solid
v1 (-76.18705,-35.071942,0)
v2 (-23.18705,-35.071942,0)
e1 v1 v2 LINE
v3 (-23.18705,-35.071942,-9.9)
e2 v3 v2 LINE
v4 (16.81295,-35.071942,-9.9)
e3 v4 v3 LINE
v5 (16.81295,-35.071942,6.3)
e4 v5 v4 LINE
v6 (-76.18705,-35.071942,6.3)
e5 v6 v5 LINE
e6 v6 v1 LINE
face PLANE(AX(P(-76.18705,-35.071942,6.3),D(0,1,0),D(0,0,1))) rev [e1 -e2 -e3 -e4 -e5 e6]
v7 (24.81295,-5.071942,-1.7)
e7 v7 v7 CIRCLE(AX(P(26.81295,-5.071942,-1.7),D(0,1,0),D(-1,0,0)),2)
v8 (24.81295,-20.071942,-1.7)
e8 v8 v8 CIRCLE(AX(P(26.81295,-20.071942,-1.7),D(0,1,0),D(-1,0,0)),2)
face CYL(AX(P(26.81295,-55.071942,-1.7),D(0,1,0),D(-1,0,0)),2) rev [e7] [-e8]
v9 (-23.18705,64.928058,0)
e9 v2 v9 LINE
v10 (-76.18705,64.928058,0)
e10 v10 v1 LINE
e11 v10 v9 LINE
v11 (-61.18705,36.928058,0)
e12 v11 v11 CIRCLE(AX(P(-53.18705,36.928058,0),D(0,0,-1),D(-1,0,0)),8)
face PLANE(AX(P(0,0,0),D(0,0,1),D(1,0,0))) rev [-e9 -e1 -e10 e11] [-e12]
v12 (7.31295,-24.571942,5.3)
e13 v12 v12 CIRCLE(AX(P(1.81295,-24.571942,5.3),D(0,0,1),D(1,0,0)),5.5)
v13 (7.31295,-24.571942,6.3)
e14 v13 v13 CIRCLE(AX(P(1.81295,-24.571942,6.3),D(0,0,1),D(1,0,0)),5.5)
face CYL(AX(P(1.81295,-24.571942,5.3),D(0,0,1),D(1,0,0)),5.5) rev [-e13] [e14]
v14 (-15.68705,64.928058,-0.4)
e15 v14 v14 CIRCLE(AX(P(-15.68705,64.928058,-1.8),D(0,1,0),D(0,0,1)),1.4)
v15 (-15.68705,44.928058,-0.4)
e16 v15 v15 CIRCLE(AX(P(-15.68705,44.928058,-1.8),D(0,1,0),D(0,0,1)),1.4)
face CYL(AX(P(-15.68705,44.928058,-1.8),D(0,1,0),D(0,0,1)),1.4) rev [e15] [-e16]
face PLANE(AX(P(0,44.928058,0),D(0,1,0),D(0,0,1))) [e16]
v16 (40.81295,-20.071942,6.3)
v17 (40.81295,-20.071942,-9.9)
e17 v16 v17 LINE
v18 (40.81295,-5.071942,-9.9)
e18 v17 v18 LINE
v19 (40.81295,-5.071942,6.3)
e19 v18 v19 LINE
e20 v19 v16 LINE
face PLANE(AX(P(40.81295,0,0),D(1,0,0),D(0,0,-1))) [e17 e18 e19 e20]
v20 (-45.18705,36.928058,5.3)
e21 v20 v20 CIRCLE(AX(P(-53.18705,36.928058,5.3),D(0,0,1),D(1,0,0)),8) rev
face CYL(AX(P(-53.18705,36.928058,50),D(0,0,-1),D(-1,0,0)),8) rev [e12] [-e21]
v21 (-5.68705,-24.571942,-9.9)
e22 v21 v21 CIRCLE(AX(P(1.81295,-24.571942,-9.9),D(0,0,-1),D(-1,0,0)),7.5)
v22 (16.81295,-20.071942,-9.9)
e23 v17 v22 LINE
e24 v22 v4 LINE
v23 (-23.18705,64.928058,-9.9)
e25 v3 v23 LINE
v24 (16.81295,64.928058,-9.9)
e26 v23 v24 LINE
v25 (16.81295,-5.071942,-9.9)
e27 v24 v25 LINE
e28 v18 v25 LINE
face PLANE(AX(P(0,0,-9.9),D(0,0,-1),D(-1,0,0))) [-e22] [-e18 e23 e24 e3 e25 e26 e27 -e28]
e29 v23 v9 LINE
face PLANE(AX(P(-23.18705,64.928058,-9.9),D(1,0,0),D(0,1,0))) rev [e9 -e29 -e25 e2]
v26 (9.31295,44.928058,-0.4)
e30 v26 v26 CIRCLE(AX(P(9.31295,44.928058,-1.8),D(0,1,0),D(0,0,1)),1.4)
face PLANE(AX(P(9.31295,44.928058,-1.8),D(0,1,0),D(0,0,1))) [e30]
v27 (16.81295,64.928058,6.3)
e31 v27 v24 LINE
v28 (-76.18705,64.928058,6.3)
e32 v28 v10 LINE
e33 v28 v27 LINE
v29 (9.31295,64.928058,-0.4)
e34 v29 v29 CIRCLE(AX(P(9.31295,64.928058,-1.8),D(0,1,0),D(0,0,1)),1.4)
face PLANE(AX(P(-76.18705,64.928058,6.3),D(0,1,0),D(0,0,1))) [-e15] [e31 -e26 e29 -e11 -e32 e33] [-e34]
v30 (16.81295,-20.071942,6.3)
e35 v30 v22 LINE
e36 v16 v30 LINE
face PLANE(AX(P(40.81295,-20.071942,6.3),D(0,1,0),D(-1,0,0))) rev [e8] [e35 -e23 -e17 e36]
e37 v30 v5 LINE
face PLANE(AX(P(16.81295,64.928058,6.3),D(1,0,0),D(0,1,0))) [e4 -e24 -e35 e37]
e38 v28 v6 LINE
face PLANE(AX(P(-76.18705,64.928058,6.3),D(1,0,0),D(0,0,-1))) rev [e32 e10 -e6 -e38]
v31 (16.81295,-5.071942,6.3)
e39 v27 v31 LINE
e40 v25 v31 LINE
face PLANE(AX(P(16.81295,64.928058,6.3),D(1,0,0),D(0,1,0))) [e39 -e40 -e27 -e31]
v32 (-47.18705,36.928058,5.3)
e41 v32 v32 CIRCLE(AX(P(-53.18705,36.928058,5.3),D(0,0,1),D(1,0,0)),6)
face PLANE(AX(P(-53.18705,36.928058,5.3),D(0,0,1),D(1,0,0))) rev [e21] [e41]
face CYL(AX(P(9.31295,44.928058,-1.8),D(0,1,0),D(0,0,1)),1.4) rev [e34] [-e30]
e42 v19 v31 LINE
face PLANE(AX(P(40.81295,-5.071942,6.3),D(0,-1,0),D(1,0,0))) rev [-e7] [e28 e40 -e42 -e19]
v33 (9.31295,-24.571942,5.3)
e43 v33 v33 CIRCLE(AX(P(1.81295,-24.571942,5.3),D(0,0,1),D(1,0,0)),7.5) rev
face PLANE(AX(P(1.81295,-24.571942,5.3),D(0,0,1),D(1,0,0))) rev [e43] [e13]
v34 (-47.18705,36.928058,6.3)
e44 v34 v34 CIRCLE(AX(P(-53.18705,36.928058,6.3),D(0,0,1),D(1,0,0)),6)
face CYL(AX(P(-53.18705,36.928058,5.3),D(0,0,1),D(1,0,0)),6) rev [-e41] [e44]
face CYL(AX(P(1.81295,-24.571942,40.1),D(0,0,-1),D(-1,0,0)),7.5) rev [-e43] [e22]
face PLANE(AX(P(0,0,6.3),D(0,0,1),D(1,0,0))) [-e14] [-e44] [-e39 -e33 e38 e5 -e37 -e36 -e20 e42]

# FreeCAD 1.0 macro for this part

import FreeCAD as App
import Part
import Sketcher
from FreeCAD import Vector
Q = App.Units.Quantity

doc = App.newDocument("Part")
body = doc.addObject("PartDesign::Body", "Body")

sketch1 = body.newObject("Sketcher::SketchObject", "Sketch")
sketch1.AttachmentSupport = (doc.getObject("XY_Plane"), [""])
sketch1.MapMode = "FlatFace"
sketch1.addGeometry([
    Part.LineSegment(Vector(-76, 65, 0), Vector(-76, -35, 0)),
    Part.LineSegment(Vector(-76, -35, 0), Vector(17, -35, 0)),
    Part.LineSegment(Vector(17, -35, 0), Vector(17, 65, 0)),
    Part.LineSegment(Vector(17, 65, 0), Vector(-76, 65, 0)),
], False)
sketch1.addConstraint([
    Sketcher.Constraint("Coincident", 0, 2, 1, 1),
    Sketcher.Constraint("Coincident", 1, 2, 2, 1),
    Sketcher.Constraint("Coincident", 2, 2, 3, 1),
    Sketcher.Constraint("Coincident", 3, 2, 0, 1),
    Sketcher.Constraint("Vertical", 0),
    Sketcher.Constraint("Horizontal", 1),
    Sketcher.Constraint("Vertical", 2),
    Sketcher.Constraint("Horizontal", 3),
    Sketcher.Constraint("DistanceX", 1, 1, 1, 2, Q("93 mm")),
    Sketcher.Constraint("DistanceY", 0, 2, 0, 1, Q("100 mm")),
    Sketcher.Constraint("DistanceX", 0, 2, -1, 1, Q("76.18705 mm")),
    Sketcher.Constraint("DistanceY", 0, 2, -1, 1, Q("35.071942 mm")),
])
pad1 = body.newObject("PartDesign::Pad", "Pad")
pad1.Profile = sketch1
pad1.Length = 6.3

sketch2 = body.newObject("Sketcher::SketchObject", "Sketch001")
sketch2.AttachmentSupport = (doc.getObject("XY_Plane"), [""])
sketch2.MapMode = "FlatFace"
sketch2.addGeometry([
    Part.LineSegment(Vector(17, 65, 0), Vector(17, -35, 0)),
    Part.LineSegment(Vector(17, -35, 0), Vector(-23, -35, 0)),
    Part.LineSegment(Vector(-23, -35, 0), Vector(-23, 65, 0)),
    Part.LineSegment(Vector(-23, 65, 0), Vector(17, 65, 0)),
], False)
sketch2.addConstraint([
    Sketcher.Constraint("Coincident", 0, 2, 1, 1),
    Sketcher.Constraint("Coincident", 1, 2, 2, 1),
    Sketcher.Constraint("Coincident", 2, 2, 3, 1),
    Sketcher.Constraint("Coincident", 3, 2, 0, 1),
    Sketcher.Constraint("Vertical", 0),
    Sketcher.Constraint("Horizontal", 1),
    Sketcher.Constraint("Vertical", 2),
    Sketcher.Constraint("Horizontal", 3),
    Sketcher.Constraint("DistanceX", 1, 2, 1, 1, Q("40 mm")),
    Sketcher.Constraint("DistanceY", 0, 2, 0, 1, Q("100 mm")),
    Sketcher.Constraint("DistanceX", -1, 1, 0, 2, Q("16.81295 mm")),
    Sketcher.Constraint("DistanceY", 0, 2, -1, 1, Q("35.071942 mm")),
])
pad2 = body.newObject("PartDesign::Pad", "Pad001")
pad2.Profile = sketch2
pad2.Length = 9.9
pad2.Reversed = True

sketch3 = body.newObject("Sketcher::SketchObject", "Sketch002")
sketch3.AttachmentSupport = (doc.getObject("YZ_Plane"), [""])
sketch3.MapMode = "FlatFace"
sketch3.AttachmentOffset = App.Placement(Vector(0, 0, 16.81295), App.Rotation())
sketch3.addGeometry([
    Part.LineSegment(Vector(-5, 6, 0), Vector(-20, 6, 0)),
    Part.LineSegment(Vector(-20, 6, 0), Vector(-20, -10, 0)),
    Part.LineSegment(Vector(-20, -10, 0), Vector(-5, -10, 0)),
    Part.LineSegment(Vector(-5, -10, 0), Vector(-5, 6, 0)),
], False)
sketch3.addConstraint([
    Sketcher.Constraint("Coincident", 0, 2, 1, 1),
    Sketcher.Constraint("Coincident", 1, 2, 2, 1),
    Sketcher.Constraint("Coincident", 2, 2, 3, 1),
    Sketcher.Constraint("Coincident", 3, 2, 0, 1),
    Sketcher.Constraint("Horizontal", 0),
    Sketcher.Constraint("Vertical", 1),
    Sketcher.Constraint("Horizontal", 2),
    Sketcher.Constraint("Vertical", 3),
    Sketcher.Constraint("DistanceX", 0, 2, 0, 1, Q("15 mm")),
    Sketcher.Constraint("DistanceY", 1, 2, 1, 1, Q("16.2 mm")),
    Sketcher.Constraint("DistanceY", -1, 1, 0, 2, Q("6.3 mm")),
    Sketcher.Constraint("DistanceX", 0, 2, -1, 1, Q("20.071942 mm")),
])
pad3 = body.newObject("PartDesign::Pad", "Pad002")
pad3.Profile = sketch3
pad3.Length = 24

sketch4 = body.newObject("Sketcher::SketchObject", "Sketch003")
sketch4.AttachmentSupport = (doc.getObject("XZ_Plane"), [""])
sketch4.MapMode = "FlatFace"
sketch4.AttachmentOffset = App.Placement(Vector(0, 0, 5.071942), App.Rotation())
sketch4.addGeometry(Part.Circle(Vector(26.8, -1.7, 0), Vector(0, 0, 1), 2), False)
sketch4.addConstraint([
    Sketcher.Constraint("Diameter", 0, Q("4 mm")),
    Sketcher.Constraint("DistanceY", 0, 3, -1, 1, Q("1.7 mm")),
    Sketcher.Constraint("DistanceX", -1, 1, 0, 3, Q("26.81295 mm")),
])
pocket1 = body.newObject("PartDesign::Pocket", "Pocket")
pocket1.Profile = sketch4
pocket1.Length = 50
pocket1.Reversed = True

sketch5 = body.newObject("Sketcher::SketchObject", "Sketch004")
sketch5.AttachmentSupport = (doc.getObject("XY_Plane"), [""])
sketch5.MapMode = "FlatFace"
sketch5.AttachmentOffset = App.Placement(Vector(0, 0, -9.9), App.Rotation())
sketch5.addGeometry(Part.Circle(Vector(2, -25, 0), Vector(0, 0, 1), 8), False)
sketch5.addConstraint([
    Sketcher.Constraint("Diameter", 0, Q("15 mm")),
    Sketcher.Constraint("DistanceX", -1, 1, 0, 3, Q("1.81295 mm")),
    Sketcher.Constraint("DistanceY", 0, 3, -1, 1, Q("24.571942 mm")),
])
pocket2 = body.newObject("PartDesign::Pocket", "Pocket001")
pocket2.Profile = sketch5
pocket2.Length = 50
pocket2.Reversed = True

sketch6 = body.newObject("Sketcher::SketchObject", "Sketch005")
sketch6.AttachmentSupport = (doc.getObject("XY_Plane"), [""])
sketch6.MapMode = "FlatFace"
sketch6.addGeometry(Part.Circle(Vector(-53, 37, 0), Vector(0, 0, 1), 8), False)
sketch6.addConstraint([
    Sketcher.Constraint("Diameter", 0, Q("16 mm")),
    Sketcher.Constraint("DistanceX", 0, 3, -1, 1, Q("53.18705 mm")),
    Sketcher.Constraint("DistanceY", -1, 1, 0, 3, Q("36.928058 mm")),
])
pocket3 = body.newObject("PartDesign::Pocket", "Pocket002")
pocket3.Profile = sketch6
pocket3.Length = 50
pocket3.Reversed = True

sketch7 = body.newObject("Sketcher::SketchObject", "Sketch006")
sketch7.AttachmentSupport = (doc.getObject("XY_Plane"), [""])
sketch7.MapMode = "FlatFace"
sketch7.AttachmentOffset = App.Placement(Vector(0, 0, 5.3), App.Rotation())
sketch7.addGeometry([
    Part.Circle(Vector(-53, 37, 0), Vector(0, 0, 1), 8),
    Part.Circle(Vector(-53, 37, 0), Vector(0, 0, 1), 6),
], False)
sketch7.addConstraint([
    Sketcher.Constraint("Coincident", 1, 3, 0, 3),
    Sketcher.Constraint("Diameter", 0, Q("16 mm")),
    Sketcher.Constraint("Diameter", 1, Q("12 mm")),
    Sketcher.Constraint("DistanceX", 0, 3, -1, 1, Q("53.18705 mm")),
    Sketcher.Constraint("DistanceY", -1, 1, 0, 3, Q("36.928058 mm")),
])
pad4 = body.newObject("PartDesign::Pad", "Pad003")
pad4.Profile = sketch7
pad4.Length = 1

sketch8 = body.newObject("Sketcher::SketchObject", "Sketch007")
sketch8.AttachmentSupport = (doc.getObject("XY_Plane"), [""])
sketch8.MapMode = "FlatFace"
sketch8.AttachmentOffset = App.Placement(Vector(0, 0, 5.3), App.Rotation())
sketch8.addGeometry([
    Part.Circle(Vector(2, -25, 0), Vector(0, 0, 1), 8),
    Part.Circle(Vector(2, -25, 0), Vector(0, 0, 1), 6),
], False)
sketch8.addConstraint([
    Sketcher.Constraint("Coincident", 1, 3, 0, 3),
    Sketcher.Constraint("Diameter", 0, Q("15 mm")),
    Sketcher.Constraint("Diameter", 1, Q("11 mm")),
    Sketcher.Constraint("DistanceX", -1, 1, 0, 3, Q("1.81295 mm")),
    Sketcher.Constraint("DistanceY", 0, 3, -1, 1, Q("24.571942 mm")),
])
pad5 = body.newObject("PartDesign::Pad", "Pad004")
pad5.Profile = sketch8
pad5.Length = 1

sketch9 = body.newObject("Sketcher::SketchObject", "Sketch008")
sketch9.AttachmentSupport = (doc.getObject("XZ_Plane"), [""])
sketch9.MapMode = "FlatFace"
sketch9.AttachmentOffset = App.Placement(Vector(0, 0, -64.928058), App.Rotation())
sketch9.addGeometry([
    Part.Circle(Vector(-15.7, -1.8, 0), Vector(0, 0, 1), 1.4),
    Part.Circle(Vector(9.3, -1.8, 0), Vector(0, 0, 1), 1.4),
], False)
sketch9.addConstraint([
    Sketcher.Constraint("Equal", 0, 1),
    Sketcher.Constraint("Horizontal", 0, 3, 1, 3),
    Sketcher.Constraint("Diameter", 0, Q("2.8 mm")),
    Sketcher.Constraint("DistanceX", 0, 3, 1, 3, Q("25 mm")),
    Sketcher.Constraint("DistanceY", 0, 3, -1, 1, Q("1.8 mm")),
    Sketcher.Constraint("DistanceX", 0, 3, -1, 1, Q("15.68705 mm")),
])
pocket4 = body.newObject("PartDesign::Pocket", "Pocket003")
pocket4.Profile = sketch9
pocket4.Length = 20
pocket4.Reversed = True

doc.recompute()
